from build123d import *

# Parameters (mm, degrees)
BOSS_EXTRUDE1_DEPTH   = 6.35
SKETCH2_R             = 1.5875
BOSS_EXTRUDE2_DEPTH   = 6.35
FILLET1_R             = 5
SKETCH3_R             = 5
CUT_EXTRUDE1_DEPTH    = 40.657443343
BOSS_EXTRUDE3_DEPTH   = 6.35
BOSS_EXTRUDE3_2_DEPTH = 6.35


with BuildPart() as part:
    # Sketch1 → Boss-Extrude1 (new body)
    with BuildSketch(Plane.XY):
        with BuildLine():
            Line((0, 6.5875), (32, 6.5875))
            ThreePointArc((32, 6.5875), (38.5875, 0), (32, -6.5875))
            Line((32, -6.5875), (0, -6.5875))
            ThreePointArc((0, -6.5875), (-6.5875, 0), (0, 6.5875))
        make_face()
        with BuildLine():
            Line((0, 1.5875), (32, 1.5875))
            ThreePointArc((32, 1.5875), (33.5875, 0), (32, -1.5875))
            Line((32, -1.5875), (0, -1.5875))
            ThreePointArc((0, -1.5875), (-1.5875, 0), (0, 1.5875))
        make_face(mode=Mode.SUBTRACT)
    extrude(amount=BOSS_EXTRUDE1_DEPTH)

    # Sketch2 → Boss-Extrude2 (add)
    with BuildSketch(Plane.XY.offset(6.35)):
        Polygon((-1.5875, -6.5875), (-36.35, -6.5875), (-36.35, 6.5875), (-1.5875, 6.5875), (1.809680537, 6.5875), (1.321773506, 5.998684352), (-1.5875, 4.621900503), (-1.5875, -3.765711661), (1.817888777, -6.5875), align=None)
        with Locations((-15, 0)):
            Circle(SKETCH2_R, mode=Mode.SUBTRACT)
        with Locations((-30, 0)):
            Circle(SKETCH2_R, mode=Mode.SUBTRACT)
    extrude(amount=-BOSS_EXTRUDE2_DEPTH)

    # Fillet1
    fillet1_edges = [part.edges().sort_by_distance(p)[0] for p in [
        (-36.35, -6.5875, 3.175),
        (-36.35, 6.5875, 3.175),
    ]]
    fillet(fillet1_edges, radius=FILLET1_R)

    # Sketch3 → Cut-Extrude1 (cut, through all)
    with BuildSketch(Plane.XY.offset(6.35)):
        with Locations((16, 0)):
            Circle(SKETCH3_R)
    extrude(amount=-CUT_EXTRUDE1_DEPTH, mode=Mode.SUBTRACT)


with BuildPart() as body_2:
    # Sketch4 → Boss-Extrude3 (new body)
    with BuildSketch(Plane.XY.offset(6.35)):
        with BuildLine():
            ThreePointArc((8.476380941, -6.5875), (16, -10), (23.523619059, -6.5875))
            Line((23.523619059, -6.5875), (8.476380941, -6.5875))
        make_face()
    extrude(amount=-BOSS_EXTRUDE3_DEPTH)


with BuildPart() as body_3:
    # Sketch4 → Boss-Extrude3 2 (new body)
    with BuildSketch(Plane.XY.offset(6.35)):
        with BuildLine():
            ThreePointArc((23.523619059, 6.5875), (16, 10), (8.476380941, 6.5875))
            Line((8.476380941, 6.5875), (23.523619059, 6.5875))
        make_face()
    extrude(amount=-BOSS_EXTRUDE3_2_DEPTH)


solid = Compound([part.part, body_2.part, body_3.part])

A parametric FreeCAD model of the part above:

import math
import FreeCAD as App
import Part
import Sketcher

V = App.Vector


def edges_at(feature, points):
    """Names of the edges that pass closest to the given points."""
    edges = feature.Shape.Edges
    near = lambda p: min(range(len(edges)), key=lambda i: edges[i].distToShape(Part.Vertex(*p))[0])
    return sorted({f"Edge{near(p) + 1}" for p in points})

doc = App.newDocument("Part")
body = doc.addObject("PartDesign::Body", "Body")

sketch1 = body.newObject("Sketcher::SketchObject", "Sketch")
sketch1.AttachmentSupport = (doc.getObject("XY_Plane"), [""])
sketch1.MapMode = "FlatFace"
sketch1.addGeometry([
    Part.LineSegment(V(32, 6.5875, 0), V(0, 6.5875, 0)),
    Part.ArcOfCircle(Part.Circle(V(0, 0, 0), V(0, 0, 1), 6.5875), math.radians(90), math.radians(270)),
    Part.LineSegment(V(0, -6.5875, 0), V(32, -6.5875, 0)),
    Part.ArcOfCircle(Part.Circle(V(32, 0, 0), V(0, 0, 1), 6.5875), math.radians(-90), math.radians(90)),
    Part.LineSegment(V(0, 1.5875, 0), V(32, 1.5875, 0)),
    Part.ArcOfCircle(Part.Circle(V(32, 0, 0), V(0, 0, 1), 1.5875), math.radians(-90), math.radians(90)),
    Part.LineSegment(V(32, -1.5875, 0), V(0, -1.5875, 0)),
    Part.ArcOfCircle(Part.Circle(V(0, 0, 0), V(0, 0, 1), 1.5875), math.radians(90), math.radians(270)),
], False)
sketch1.addConstraint([
    Sketcher.Constraint("Tangent", 0, 2, 1, 1),
    Sketcher.Constraint("Tangent", 1, 2, 2, 1),
    Sketcher.Constraint("Tangent", 2, 2, 3, 1),
    Sketcher.Constraint("Tangent", 3, 2, 0, 1),
    Sketcher.Constraint("Tangent", 4, 2, 5, 2),
    Sketcher.Constraint("Tangent", 5, 1, 6, 1),
    Sketcher.Constraint("Tangent", 6, 2, 7, 2),
    Sketcher.Constraint("Tangent", 7, 1, 4, 1),
    Sketcher.Constraint("Horizontal", 0),
    Sketcher.Constraint("Horizontal", 2),
    Sketcher.Constraint("Horizontal", 4),
    Sketcher.Constraint("Horizontal", 6),
    Sketcher.Constraint("Coincident", 1, 3, -1, 1),
    Sketcher.Constraint("Coincident", 7, 3, -1, 1),
    Sketcher.Constraint("Vertical", 5, 3, 2, 2),
    Sketcher.Constraint("DistanceX", 0, 2, 0, 1, 32.0),
    Sketcher.Constraint("DistanceY", 4, 2, 3, 2, 5.0),
    Sketcher.Constraint("Radius", 1, 6.5875),
])
pad1 = body.newObject("PartDesign::Pad", "Pad")
pad1.Profile = sketch1
pad1.Length = 6.35

sketch2 = body.newObject("Sketcher::SketchObject", "Sketch001")
sketch2.AttachmentSupport = (doc.getObject("XY_Plane"), [""])
sketch2.MapMode = "FlatFace"
sketch2.AttachmentOffset = App.Placement(V(0, 0, 6.35), App.Rotation())
sketch2.addGeometry([
    Part.LineSegment(V(-36.35, -6.5875, 0), V(1.817889, -6.5875, 0)),
    Part.LineSegment(V(1.817889, -6.5875, 0), V(-1.5875, -3.765712, 0)),
    Part.LineSegment(V(-1.5875, -3.765712, 0), V(-1.5875, 4.621901, 0)),
    Part.LineSegment(V(-1.5875, 4.621901, 0), V(1.321774, 5.998684, 0)),
    Part.LineSegment(V(1.321774, 5.998684, 0), V(1.809681, 6.5875, 0)),
    Part.LineSegment(V(1.809681, 6.5875, 0), V(-36.35, 6.5875, 0)),
    Part.LineSegment(V(-36.35, 6.5875, 0), V(-36.35, -6.5875, 0)),
    Part.Circle(V(-15, 0, 0), V(0, 0, 1), 1.5875),
    Part.Circle(V(-30, 0, 0), V(0, 0, 1), 1.5875),
], False)
sketch2.addConstraint([
    Sketcher.Constraint("Coincident", 0, 2, 1, 1),
    Sketcher.Constraint("Coincident", 1, 2, 2, 1),
    Sketcher.Constraint("Coincident", 2, 2, 3, 1),
    Sketcher.Constraint("Coincident", 3, 2, 4, 1),
    Sketcher.Constraint("Coincident", 4, 2, 5, 1),
    Sketcher.Constraint("Coincident", 5, 2, 6, 1),
    Sketcher.Constraint("Coincident", 6, 2, 0, 1),
    Sketcher.Constraint("Horizontal", 0),
    Sketcher.Constraint("Vertical", 2),
    Sketcher.Constraint("Horizontal", 5),
    Sketcher.Constraint("Vertical", 6),
    Sketcher.Constraint("Equal", 7, 8),
    Sketcher.Constraint("PointOnObject", 7, 3, -1),
    Sketcher.Constraint("PointOnObject", 8, 3, -1),
    Sketcher.Constraint("Perpendicular", 1, 4),
    Sketcher.Constraint("Diameter", 7, 3.175),
    Sketcher.Constraint("DistanceX", 7, 3, -1, 1, 15.0),
    Sketcher.Constraint("DistanceX", 8, 3, -1, 1, 30.0),
    Sketcher.Constraint("DistanceY", 6, 2, 6, 1, 13.175),
    Sketcher.Constraint("DistanceX", 5, 2, -1, 1, 36.35),
    Sketcher.Constraint("DistanceX", 0, 1, 0, 2, 38.167889),
    Sketcher.Constraint("DistanceX", 5, 2, 5, 1, 38.159681),
    Sketcher.Constraint("DistanceY", 0, 2, -1, 1, 6.5875),
    Sketcher.Constraint("DistanceX", 1, 2, -1, 1, 1.5875),
    Sketcher.Constraint("DistanceY", -1, 1, 2, 2, 4.621901),
    Sketcher.Constraint("DistanceY", 2, 1, 2, 2, 8.387612),
    Sketcher.Constraint("Distance", 3, 3.218603),
])
pad2 = body.newObject("PartDesign::Pad", "Pad001")
pad2.Profile = sketch2
pad2.Length = 6.35
pad2.Reversed = True
doc.recompute()

fillet = body.newObject("PartDesign::Fillet", "Fillet")
fillet.Base = (pad2, edges_at(pad2, [(-36.35, -6.588, 3.175), (-36.35, 6.588, 3.175)]))
fillet.Radius = 5

sketch3 = body.newObject("Sketcher::SketchObject", "Sketch002")
sketch3.AttachmentSupport = (doc.getObject("XY_Plane"), [""])
sketch3.MapMode = "FlatFace"
sketch3.AttachmentOffset = App.Placement(V(0, 0, 6.35), App.Rotation())
sketch3.addGeometry(Part.Circle(V(16, 0, 0), V(0, 0, 1), 5), False)
sketch3.addConstraint([
    Sketcher.Constraint("PointOnObject", 0, 3, -1),
    Sketcher.Constraint("Diameter", 0, 10.0),
    Sketcher.Constraint("DistanceX", -1, 1, 0, 3, 16.0),
])
pocket1 = body.newObject("PartDesign::Pocket", "Pocket")
pocket1.Profile = sketch3
pocket1.Type = "ThroughAll"
body2 = doc.addObject("PartDesign::Body", "Body001")

sketch4 = body2.newObject("Sketcher::SketchObject", "Sketch003")
sketch4.AttachmentSupport = (doc.getObject("XY_Plane001"), [""])
sketch4.MapMode = "FlatFace"
sketch4.AttachmentOffset = App.Placement(V(0, 0, 6.35), App.Rotation())
sketch4.addGeometry([
    Part.ArcOfCircle(Part.Circle(V(16, 0, 0), V(0, 0, 1), 10), math.radians(-138.79539), math.radians(-41.20461)),
    Part.LineSegment(V(23.523619, -6.5875, 0), V(8.476381, -6.5875, 0)),
], False)
sketch4.addConstraint([
    Sketcher.Constraint("Coincident", 0, 1, 1, 2),
    Sketcher.Constraint("Coincident", 1, 1, 0, 2),
    Sketcher.Constraint("Horizontal", 1),
    Sketcher.Constraint("PointOnObject", 0, 3, -1),
    Sketcher.Constraint("Radius", 0, 10.0),
    Sketcher.Constraint("DistanceX", -1, 1, 0, 3, 16.0),
    Sketcher.Constraint("DistanceX", 1, 2, 1, 1, 15.047238),
])
pad3 = body2.newObject("PartDesign::Pad", "Pad002")
pad3.Profile = sketch4
pad3.Length = 6.35
pad3.Reversed = True
body3 = doc.addObject("PartDesign::Body", "Body002")

sketch5 = body3.newObject("Sketcher::SketchObject", "Sketch004")
sketch5.AttachmentSupport = (doc.getObject("XY_Plane002"), [""])
sketch5.MapMode = "FlatFace"
sketch5.AttachmentOffset = App.Placement(V(0, 0, 6.35), App.Rotation())
sketch5.addGeometry([
    Part.ArcOfCircle(Part.Circle(V(16, 0, 0), V(0, 0, 1), 10), math.radians(41.20461), math.radians(138.79539)),
    Part.LineSegment(V(8.476381, 6.5875, 0), V(23.523619, 6.5875, 0)),
], False)
sketch5.addConstraint([
    Sketcher.Constraint("Coincident", 0, 1, 1, 2),
    Sketcher.Constraint("Coincident", 1, 1, 0, 2),
    Sketcher.Constraint("Horizontal", 1),
    Sketcher.Constraint("PointOnObject", 0, 3, -1),
    Sketcher.Constraint("Radius", 0, 10.0),
    Sketcher.Constraint("DistanceX", -1, 1, 0, 3, 16.0),
    Sketcher.Constraint("DistanceX", 1, 1, 1, 2, 15.047238),
])
pad4 = body3.newObject("PartDesign::Pad", "Pad003")
pad4.Profile = sketch5
pad4.Length = 6.35
pad4.Reversed = True

doc.recompute()
